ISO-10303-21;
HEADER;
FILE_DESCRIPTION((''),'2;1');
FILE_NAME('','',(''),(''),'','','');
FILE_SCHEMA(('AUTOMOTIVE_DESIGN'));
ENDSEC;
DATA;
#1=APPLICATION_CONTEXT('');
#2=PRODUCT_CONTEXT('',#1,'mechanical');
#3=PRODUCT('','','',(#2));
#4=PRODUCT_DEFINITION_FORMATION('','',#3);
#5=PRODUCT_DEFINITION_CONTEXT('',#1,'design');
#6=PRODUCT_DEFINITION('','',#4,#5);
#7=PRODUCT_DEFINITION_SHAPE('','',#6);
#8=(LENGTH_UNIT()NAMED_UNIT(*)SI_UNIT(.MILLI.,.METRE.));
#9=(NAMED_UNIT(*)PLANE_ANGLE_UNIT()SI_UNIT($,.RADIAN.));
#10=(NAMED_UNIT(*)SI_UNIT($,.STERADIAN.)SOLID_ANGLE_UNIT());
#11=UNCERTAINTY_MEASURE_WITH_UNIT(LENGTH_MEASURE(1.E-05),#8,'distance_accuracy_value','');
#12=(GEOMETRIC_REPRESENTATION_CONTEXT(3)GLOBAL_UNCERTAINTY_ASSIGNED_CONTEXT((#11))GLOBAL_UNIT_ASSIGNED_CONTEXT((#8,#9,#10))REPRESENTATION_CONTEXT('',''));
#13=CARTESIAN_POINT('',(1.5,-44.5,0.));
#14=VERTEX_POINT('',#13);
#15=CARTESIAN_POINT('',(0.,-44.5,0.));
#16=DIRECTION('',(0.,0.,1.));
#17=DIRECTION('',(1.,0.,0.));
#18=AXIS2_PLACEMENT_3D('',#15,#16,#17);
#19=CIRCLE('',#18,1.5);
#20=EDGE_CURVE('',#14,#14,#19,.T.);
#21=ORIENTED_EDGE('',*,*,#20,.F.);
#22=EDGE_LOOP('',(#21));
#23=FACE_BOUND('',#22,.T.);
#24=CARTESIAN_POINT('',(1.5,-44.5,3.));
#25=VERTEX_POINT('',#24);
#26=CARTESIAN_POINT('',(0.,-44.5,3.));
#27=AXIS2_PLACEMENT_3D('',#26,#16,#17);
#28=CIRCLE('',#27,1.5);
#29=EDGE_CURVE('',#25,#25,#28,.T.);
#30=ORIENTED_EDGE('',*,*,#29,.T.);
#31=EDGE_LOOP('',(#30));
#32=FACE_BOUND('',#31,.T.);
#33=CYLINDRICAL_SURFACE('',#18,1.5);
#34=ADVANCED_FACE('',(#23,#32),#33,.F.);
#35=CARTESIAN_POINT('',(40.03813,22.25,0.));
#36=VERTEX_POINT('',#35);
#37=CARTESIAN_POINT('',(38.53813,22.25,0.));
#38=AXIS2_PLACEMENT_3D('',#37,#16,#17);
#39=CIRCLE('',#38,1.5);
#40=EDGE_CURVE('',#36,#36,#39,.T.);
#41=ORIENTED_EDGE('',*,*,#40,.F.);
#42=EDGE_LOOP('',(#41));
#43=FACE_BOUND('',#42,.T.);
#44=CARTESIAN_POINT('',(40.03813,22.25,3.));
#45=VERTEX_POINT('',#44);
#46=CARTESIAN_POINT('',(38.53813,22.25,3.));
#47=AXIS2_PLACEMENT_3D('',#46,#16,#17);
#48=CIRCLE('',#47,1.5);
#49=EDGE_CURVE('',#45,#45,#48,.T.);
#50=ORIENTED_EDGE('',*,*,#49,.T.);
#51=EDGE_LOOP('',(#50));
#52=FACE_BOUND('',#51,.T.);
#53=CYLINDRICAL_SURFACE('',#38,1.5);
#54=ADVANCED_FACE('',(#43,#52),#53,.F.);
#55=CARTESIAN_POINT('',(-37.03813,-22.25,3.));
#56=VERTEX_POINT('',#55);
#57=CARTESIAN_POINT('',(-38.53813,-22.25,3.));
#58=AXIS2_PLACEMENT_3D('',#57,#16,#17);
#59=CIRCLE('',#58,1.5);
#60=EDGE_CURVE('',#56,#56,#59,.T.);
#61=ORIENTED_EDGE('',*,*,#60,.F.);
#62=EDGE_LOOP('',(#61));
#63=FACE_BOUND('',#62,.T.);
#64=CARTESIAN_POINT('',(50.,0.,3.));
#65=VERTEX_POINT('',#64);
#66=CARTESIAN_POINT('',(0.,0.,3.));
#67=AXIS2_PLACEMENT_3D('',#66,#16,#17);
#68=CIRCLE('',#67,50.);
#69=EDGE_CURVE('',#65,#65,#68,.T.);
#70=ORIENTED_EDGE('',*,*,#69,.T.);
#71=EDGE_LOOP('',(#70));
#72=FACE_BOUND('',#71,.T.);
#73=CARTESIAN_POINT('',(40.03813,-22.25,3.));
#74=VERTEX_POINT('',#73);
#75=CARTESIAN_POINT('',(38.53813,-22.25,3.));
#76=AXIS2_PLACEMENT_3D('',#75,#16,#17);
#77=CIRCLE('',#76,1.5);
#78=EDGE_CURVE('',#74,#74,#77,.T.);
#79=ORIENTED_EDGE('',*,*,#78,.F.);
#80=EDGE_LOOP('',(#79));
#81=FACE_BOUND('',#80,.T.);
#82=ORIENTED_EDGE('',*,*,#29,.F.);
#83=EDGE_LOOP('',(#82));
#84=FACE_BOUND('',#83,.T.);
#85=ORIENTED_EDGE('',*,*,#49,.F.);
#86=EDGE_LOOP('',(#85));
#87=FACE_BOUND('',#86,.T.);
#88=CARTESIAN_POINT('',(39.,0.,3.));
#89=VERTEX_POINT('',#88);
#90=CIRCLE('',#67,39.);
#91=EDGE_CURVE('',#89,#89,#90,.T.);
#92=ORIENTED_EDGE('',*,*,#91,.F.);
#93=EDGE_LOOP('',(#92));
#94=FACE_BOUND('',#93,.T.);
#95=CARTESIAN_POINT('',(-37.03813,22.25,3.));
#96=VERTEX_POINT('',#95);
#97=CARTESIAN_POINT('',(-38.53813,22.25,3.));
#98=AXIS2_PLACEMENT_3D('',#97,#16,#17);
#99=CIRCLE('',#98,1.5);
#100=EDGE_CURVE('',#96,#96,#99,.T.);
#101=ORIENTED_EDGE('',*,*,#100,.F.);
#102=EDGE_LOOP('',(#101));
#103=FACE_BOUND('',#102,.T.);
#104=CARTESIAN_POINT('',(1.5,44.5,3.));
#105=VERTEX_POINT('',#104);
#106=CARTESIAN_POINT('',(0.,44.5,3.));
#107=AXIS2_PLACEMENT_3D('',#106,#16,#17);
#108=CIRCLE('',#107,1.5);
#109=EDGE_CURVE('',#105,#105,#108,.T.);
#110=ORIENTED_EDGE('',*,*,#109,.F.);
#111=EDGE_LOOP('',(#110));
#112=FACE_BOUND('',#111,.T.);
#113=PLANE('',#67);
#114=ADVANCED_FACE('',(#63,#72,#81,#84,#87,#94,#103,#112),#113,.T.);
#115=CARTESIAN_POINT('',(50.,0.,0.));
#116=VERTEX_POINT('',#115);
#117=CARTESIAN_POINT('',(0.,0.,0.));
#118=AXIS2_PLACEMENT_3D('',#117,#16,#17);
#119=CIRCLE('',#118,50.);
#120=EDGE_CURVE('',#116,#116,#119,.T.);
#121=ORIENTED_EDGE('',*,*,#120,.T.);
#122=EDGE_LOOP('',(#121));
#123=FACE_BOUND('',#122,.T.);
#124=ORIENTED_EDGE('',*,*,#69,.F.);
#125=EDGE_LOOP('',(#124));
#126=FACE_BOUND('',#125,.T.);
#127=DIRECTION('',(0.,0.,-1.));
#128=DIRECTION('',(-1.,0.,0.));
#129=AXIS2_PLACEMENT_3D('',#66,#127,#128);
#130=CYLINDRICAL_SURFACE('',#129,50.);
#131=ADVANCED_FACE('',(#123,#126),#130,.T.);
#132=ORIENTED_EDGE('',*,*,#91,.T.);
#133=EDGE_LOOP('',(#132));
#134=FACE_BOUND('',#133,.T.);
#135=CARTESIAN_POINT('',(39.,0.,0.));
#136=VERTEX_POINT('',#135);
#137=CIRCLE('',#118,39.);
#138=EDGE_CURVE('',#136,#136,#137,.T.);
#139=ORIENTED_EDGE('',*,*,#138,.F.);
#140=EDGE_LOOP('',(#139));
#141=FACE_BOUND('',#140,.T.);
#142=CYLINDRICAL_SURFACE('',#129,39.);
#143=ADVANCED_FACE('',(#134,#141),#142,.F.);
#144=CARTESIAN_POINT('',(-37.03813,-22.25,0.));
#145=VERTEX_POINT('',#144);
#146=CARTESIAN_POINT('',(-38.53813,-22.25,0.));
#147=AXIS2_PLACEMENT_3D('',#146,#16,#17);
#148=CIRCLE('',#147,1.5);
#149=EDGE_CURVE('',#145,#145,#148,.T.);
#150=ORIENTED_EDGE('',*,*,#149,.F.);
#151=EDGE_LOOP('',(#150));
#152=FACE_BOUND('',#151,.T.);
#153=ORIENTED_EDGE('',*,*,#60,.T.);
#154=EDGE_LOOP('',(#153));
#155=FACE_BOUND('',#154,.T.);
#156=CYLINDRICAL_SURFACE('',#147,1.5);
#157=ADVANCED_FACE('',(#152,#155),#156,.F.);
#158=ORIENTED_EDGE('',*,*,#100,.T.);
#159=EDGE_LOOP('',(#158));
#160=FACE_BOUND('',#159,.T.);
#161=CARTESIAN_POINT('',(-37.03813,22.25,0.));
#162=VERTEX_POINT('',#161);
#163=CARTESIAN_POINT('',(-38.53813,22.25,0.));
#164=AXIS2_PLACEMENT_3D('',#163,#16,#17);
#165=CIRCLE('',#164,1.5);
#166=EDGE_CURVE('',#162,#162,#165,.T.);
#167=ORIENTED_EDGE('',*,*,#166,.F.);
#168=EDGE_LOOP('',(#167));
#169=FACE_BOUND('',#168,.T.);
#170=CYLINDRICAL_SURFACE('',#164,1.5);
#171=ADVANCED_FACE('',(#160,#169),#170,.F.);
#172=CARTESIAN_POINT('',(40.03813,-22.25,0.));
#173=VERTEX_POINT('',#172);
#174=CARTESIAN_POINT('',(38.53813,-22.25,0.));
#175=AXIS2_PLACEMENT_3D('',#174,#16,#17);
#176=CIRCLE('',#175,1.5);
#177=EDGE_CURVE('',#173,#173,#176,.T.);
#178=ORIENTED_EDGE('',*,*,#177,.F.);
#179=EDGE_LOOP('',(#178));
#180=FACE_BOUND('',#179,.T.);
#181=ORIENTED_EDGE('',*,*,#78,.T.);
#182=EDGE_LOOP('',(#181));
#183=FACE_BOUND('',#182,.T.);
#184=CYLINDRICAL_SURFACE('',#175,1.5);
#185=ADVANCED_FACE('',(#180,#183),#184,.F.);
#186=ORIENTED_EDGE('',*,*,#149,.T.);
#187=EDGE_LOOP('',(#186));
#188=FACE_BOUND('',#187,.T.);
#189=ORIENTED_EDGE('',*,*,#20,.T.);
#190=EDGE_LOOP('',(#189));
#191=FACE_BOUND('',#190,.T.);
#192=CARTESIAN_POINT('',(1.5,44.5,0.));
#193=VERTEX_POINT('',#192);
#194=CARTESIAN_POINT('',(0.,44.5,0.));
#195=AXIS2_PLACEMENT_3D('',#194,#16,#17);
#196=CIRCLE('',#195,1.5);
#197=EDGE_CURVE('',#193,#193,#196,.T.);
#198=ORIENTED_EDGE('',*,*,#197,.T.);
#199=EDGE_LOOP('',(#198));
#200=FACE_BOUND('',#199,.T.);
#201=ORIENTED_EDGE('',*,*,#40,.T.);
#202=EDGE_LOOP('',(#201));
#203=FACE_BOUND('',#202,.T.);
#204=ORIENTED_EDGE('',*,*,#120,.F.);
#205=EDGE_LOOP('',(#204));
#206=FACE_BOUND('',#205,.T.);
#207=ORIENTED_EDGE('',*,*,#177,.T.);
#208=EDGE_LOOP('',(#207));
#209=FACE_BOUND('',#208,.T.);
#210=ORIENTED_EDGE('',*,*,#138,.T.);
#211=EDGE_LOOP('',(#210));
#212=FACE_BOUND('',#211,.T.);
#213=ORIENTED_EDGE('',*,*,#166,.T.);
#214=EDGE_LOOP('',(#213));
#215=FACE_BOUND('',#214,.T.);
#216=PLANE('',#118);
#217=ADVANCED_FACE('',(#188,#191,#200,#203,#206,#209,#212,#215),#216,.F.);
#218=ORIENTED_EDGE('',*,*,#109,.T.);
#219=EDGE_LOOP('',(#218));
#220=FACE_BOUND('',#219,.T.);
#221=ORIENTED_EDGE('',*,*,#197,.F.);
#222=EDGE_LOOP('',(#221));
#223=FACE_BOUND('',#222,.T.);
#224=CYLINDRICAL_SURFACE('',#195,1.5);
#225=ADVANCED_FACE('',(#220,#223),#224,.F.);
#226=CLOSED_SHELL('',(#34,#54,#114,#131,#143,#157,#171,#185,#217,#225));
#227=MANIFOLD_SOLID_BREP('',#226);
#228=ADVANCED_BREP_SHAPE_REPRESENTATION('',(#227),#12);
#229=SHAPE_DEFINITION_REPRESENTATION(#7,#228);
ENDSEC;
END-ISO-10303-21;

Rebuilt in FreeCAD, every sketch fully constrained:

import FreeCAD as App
import Part
import Sketcher
from FreeCAD import Vector
Q = App.Units.Quantity

doc = App.newDocument("Part")
params = doc.addObject("Spreadsheet::Sheet", "Params")
for row, (alias, value) in enumerate([
    ("sketch1_diameter", "100 mm"),
    ("sketch1_diameter2", "78 mm"),
    ("pad1_length", "3 mm"),
    ("sketch2_diameter", "3 mm"),
    ("pocket1_length", "3 mm"),
], start=1):
    params.set(f"A{row}", alias)
    params.set(f"B{row}", "=" + value)
    params.setAlias(f"B{row}", alias)

body = doc.addObject("PartDesign::Body", "Body")

# Sketch on XY plane
sketch1 = doc.addObject("Sketcher::SketchObject", "Sketch")
body.addObject(sketch1)
sketch1.AttachmentSupport = (doc.XY_Plane, [""])
sketch1.MapMode = "FlatFace"
sketch1.addGeometry([
    Part.Circle(Vector(0, 0, 0), Vector(0, 0, 1), 50),
    Part.Circle(Vector(0, 0, 0), Vector(0, 0, 1), 39),
], False)
sketch1.addConstraint([
    Sketcher.Constraint("Coincident", 0, 3, -1, 1),
    Sketcher.Constraint("Coincident", 1, 3, -1, 1),
    Sketcher.Constraint("Diameter", 0, Q("100 mm")),
    Sketcher.Constraint("Diameter", 1, Q("78 mm")),
])
sketch1.setExpression("Constraints[2]", "Params.sketch1_diameter")
sketch1.setExpression("Constraints[3]", "Params.sketch1_diameter2")
pad1 = doc.addObject("PartDesign::Pad", "Pad")
body.addObject(pad1)
pad1.Profile = sketch1
pad1.setExpression("Length", "Params.pad1_length")

# Sketch on XY plane
sketch2 = doc.addObject("Sketcher::SketchObject", "Sketch001")
body.addObject(sketch2)
sketch2.AttachmentSupport = (doc.XY_Plane, [""])
sketch2.MapMode = "FlatFace"
sketch2.AttachmentOffset = App.Placement(Vector(0, 0, 3), App.Rotation())
sketch2.addGeometry([
    Part.Circle(Vector(0, 44.5, 0), Vector(0, 0, 1), 1.5),  # 0
    Part.Circle(Vector(38.5, 22.2, 0), Vector(0, 0, 1), 1.5),  # 1
    Part.Circle(Vector(38.5, -22.2, 0), Vector(0, 0, 1), 1.5),  # 2
    Part.Circle(Vector(0, -44.5, 0), Vector(0, 0, 1), 1.5),  # 3
    Part.Circle(Vector(-38.5, -22.2, 0), Vector(0, 0, 1), 1.5),  # 4
    Part.Circle(Vector(-38.5, 22.2, 0), Vector(0, 0, 1), 1.5),  # 5
], False)
sketch2.addConstraint([
    Sketcher.Constraint("Equal", 0, 1),
    Sketcher.Constraint("Equal", 1, 2),
    Sketcher.Constraint("Equal", 2, 3),
    Sketcher.Constraint("Equal", 3, 4),
    Sketcher.Constraint("Equal", 4, 5),
    Sketcher.Constraint("Symmetric", 0, 3, 3, 3, -1, 1),
    Sketcher.Constraint("Symmetric", 1, 3, 4, 3, -1, 1),
    Sketcher.Constraint("Symmetric", 2, 3, 5, 3, -1, 1),
    Sketcher.Constraint("Symmetric", 2, 3, 4, 3, -2),
    Sketcher.Constraint("PointOnObject", 0, 3, -2),
    Sketcher.Constraint("Diameter", 0, Q("3 mm")),
    Sketcher.Constraint("DistanceY", 3, 3, 0, 3, Q("89 mm")),
    Sketcher.Constraint("DistanceY", 2, 3, 1, 3, Q("44.5 mm")),
    Sketcher.Constraint("DistanceX", -1, 1, 1, 3, Q("38.53813 mm")),
])
sketch2.setExpression("Constraints[10]", "Params.sketch2_diameter")
pocket1 = doc.addObject("PartDesign::Pocket", "Pocket")
body.addObject(pocket1)
pocket1.Profile = sketch2
pocket1.setExpression("Length", "Params.pocket1_length")

doc.recompute()
